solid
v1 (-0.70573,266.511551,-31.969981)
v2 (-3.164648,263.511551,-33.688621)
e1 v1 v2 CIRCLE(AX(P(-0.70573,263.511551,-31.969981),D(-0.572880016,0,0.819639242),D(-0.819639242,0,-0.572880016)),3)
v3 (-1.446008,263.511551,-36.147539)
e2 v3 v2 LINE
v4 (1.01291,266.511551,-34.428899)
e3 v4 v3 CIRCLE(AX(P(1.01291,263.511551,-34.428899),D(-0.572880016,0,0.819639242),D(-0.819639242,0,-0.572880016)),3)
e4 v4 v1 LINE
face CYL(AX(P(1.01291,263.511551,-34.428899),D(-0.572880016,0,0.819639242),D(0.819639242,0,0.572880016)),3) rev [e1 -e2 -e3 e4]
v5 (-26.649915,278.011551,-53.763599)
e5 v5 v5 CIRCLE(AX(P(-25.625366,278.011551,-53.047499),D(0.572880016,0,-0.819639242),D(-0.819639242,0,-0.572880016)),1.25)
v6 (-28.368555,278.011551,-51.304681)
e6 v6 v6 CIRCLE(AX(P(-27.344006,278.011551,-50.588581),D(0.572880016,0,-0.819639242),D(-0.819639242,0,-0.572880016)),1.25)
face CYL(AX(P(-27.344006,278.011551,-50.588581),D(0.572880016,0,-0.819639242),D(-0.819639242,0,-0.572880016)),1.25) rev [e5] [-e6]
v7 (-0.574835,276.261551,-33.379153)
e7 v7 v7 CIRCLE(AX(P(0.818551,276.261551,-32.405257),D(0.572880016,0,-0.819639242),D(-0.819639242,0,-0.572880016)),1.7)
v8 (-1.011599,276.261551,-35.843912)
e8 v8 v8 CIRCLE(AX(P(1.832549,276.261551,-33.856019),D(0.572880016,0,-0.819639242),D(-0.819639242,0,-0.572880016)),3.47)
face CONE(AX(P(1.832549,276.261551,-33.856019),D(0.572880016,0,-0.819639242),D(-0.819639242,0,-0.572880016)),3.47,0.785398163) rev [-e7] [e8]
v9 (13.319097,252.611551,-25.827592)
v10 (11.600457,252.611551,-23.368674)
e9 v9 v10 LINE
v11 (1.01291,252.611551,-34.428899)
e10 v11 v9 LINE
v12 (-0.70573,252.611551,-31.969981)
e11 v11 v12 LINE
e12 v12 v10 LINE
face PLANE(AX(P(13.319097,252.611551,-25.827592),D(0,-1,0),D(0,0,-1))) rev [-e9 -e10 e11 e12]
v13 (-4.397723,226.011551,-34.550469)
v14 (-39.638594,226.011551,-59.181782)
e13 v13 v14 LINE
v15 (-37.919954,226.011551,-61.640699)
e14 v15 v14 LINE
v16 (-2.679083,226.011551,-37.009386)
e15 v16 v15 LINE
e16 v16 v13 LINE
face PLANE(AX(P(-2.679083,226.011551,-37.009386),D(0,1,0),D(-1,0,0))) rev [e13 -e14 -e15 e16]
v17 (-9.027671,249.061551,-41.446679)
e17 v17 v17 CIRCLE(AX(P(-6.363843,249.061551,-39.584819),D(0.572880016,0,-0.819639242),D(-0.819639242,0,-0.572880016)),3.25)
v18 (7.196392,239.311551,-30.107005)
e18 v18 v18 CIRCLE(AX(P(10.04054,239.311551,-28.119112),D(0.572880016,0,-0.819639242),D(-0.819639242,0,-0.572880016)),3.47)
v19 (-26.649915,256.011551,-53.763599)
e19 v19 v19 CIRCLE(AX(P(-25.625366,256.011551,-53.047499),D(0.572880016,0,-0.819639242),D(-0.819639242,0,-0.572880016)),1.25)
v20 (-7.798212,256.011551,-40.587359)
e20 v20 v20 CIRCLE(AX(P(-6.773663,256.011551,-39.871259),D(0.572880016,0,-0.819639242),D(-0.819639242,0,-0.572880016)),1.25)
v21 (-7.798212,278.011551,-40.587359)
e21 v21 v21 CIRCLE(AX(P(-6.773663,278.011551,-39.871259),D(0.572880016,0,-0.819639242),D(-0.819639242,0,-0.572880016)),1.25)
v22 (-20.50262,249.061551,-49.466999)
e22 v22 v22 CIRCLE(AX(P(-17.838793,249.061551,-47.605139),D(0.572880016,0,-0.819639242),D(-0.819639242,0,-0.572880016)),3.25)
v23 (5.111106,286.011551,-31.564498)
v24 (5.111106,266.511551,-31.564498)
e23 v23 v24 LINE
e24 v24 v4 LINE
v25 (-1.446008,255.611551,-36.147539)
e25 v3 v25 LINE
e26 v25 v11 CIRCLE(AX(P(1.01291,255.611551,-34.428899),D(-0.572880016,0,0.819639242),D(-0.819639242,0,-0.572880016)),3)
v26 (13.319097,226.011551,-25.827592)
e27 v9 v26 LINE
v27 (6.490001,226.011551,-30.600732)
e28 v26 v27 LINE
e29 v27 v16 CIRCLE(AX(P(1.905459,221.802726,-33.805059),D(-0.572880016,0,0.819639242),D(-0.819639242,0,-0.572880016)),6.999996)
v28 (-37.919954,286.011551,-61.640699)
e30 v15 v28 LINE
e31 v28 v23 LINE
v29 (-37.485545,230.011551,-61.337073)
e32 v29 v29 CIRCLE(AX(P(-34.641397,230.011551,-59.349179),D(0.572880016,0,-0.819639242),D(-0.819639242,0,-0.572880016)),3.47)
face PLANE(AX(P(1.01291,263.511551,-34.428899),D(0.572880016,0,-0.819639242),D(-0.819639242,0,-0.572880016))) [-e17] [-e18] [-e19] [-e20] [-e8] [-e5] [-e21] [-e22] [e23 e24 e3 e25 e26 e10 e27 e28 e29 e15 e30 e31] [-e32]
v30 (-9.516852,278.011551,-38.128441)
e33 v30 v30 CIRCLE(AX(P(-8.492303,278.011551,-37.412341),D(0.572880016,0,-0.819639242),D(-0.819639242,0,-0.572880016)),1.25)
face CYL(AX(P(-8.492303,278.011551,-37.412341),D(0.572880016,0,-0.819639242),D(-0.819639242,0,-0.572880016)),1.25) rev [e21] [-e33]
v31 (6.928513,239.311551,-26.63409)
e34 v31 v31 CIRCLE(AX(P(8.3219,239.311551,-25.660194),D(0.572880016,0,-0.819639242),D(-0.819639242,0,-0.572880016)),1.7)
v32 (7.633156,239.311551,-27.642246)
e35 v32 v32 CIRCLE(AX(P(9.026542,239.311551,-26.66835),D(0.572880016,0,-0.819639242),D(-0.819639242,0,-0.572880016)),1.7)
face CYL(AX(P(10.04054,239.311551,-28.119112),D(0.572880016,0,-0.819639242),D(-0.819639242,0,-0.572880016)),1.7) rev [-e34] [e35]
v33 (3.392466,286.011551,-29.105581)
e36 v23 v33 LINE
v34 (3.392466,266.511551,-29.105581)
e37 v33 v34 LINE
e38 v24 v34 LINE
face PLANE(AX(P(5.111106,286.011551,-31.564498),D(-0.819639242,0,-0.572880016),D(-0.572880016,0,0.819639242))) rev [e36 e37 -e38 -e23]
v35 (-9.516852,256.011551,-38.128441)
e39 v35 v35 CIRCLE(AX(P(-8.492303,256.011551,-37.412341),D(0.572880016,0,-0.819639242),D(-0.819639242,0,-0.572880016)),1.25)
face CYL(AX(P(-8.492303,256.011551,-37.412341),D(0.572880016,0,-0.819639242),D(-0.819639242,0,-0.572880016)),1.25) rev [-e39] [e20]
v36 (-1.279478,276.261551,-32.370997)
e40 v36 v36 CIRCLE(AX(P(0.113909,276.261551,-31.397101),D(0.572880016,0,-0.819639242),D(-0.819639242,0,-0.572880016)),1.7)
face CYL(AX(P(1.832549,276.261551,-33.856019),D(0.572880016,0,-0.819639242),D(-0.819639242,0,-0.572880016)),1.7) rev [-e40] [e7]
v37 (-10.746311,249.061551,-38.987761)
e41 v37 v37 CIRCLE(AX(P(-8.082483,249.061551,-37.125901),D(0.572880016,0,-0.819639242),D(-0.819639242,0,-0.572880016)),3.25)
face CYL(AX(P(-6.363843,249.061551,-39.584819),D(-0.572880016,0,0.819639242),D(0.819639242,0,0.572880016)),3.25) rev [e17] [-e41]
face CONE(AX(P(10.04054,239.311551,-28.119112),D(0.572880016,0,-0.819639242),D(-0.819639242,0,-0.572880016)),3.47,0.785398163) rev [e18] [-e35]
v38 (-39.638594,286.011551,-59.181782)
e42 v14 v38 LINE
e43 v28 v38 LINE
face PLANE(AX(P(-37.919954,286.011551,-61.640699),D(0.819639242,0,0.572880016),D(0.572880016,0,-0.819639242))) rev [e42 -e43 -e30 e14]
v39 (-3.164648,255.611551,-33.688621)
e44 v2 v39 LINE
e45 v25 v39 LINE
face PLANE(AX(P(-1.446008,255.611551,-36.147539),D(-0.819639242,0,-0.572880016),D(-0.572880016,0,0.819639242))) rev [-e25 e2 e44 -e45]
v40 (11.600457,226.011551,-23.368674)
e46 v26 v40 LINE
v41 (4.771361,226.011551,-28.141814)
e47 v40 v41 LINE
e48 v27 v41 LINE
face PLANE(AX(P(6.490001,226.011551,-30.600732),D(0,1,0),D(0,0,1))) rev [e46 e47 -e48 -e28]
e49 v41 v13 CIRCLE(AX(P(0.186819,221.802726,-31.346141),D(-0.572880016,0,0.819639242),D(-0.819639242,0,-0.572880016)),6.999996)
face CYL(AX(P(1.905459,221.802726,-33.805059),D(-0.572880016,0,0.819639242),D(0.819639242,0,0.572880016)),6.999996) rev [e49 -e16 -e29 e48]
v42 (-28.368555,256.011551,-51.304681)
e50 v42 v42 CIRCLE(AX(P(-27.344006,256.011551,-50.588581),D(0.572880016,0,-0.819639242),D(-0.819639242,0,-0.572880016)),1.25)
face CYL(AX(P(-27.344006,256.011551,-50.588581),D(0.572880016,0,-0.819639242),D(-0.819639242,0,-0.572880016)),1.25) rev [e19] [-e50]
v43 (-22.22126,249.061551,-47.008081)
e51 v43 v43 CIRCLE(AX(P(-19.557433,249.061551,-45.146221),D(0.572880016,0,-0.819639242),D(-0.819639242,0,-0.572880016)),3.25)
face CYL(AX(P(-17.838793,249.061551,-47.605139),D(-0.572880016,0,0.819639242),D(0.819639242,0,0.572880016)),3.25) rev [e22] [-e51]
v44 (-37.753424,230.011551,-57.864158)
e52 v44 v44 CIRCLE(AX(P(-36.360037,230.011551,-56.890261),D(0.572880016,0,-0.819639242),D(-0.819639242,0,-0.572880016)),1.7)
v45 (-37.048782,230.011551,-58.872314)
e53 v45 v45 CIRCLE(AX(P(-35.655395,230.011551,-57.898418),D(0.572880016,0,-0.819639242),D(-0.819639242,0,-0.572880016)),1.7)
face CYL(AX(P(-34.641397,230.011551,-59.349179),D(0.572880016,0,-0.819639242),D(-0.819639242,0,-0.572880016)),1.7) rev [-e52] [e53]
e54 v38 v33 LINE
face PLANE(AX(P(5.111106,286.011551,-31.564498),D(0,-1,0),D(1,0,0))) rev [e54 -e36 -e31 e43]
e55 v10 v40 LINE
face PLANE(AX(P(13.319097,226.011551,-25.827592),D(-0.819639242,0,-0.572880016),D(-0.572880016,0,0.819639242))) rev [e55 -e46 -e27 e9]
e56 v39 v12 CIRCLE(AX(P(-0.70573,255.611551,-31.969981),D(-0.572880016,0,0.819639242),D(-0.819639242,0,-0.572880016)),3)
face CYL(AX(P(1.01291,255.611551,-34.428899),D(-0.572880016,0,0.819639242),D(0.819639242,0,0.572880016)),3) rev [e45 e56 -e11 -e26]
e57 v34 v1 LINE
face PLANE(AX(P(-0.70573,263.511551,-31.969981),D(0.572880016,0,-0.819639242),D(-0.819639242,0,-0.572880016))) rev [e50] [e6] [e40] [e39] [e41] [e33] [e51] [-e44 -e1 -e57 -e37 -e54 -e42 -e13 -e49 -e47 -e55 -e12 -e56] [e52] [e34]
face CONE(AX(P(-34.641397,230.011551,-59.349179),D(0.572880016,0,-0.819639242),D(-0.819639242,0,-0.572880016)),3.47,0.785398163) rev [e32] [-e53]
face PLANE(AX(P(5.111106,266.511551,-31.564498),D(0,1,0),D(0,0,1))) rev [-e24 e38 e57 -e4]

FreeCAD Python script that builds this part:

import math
import FreeCAD as App
import Part
import Sketcher

V = App.Vector
Q = App.Units.Quantity

doc = App.newDocument("Part")
body = doc.addObject("PartDesign::Body", "Body")

sketch1 = body.newObject("Sketcher::SketchObject", "Sketch")
sketch1.Placement = App.Placement(V(14.780048, 0, -21.146325), App.Rotation(V(-0.819639242, 0, -0.572880016), V(0, 1, 0), V(0.572880016, 0, -0.819639242), "ZXY"))
sketch1.addGeometry([
    Part.LineSegment(V(13.9, 266.5, 0), V(18.9, 266.5, 0)),
    Part.ArcOfCircle(Part.Circle(V(18.9, 263.5, 0), V(0, 0, 1), 3), math.radians(0), math.radians(90)),
    Part.LineSegment(V(21.9, 263.5, 0), V(21.9, 255.6, 0)),
    Part.ArcOfCircle(Part.Circle(V(18.9, 255.6, 0), V(0, 0, 1), 3), math.radians(-90), math.radians(0)),
    Part.LineSegment(V(18.9, 252.6, 0), V(3.9, 252.6, 0)),
    Part.LineSegment(V(3.9, 252.6, 0), V(3.9, 226, 0)),
    Part.LineSegment(V(3.9, 226, 0), V(12.2, 226, 0)),
    Part.ArcOfCircle(Part.Circle(V(17.8, 221.8, 0), V(0, 0, 1), 7), math.radians(37), math.radians(143)),
    Part.LineSegment(V(23.4, 226, 0), V(66.4, 226, 0)),
    Part.LineSegment(V(66.4, 226, 0), V(66.4, 286, 0)),
    Part.LineSegment(V(66.4, 286, 0), V(13.9, 286, 0)),
    Part.LineSegment(V(13.9, 286, 0), V(13.9, 266.5, 0)),
    Part.Circle(V(27.9, 249.1, 0), V(0, 0, 1), 3.2),
    Part.Circle(V(41.9, 249.1, 0), V(0, 0, 1), 3.2),
], False)
sketch1.addConstraint([
    Sketcher.Constraint("Tangent", 0, 2, 1, 2),
    Sketcher.Constraint("Tangent", 1, 1, 2, 1),
    Sketcher.Constraint("Tangent", 2, 2, 3, 2),
    Sketcher.Constraint("Tangent", 3, 1, 4, 1),
    Sketcher.Constraint("Coincident", 4, 2, 5, 1),
    Sketcher.Constraint("Coincident", 5, 2, 6, 1),
    Sketcher.Constraint("Coincident", 6, 2, 7, 2),
    Sketcher.Constraint("Coincident", 7, 1, 8, 1),
    Sketcher.Constraint("Coincident", 8, 2, 9, 1),
    Sketcher.Constraint("Coincident", 9, 2, 10, 1),
    Sketcher.Constraint("Coincident", 10, 2, 11, 1),
    Sketcher.Constraint("Coincident", 11, 2, 0, 1),
    Sketcher.Constraint("Horizontal", 0),
    Sketcher.Constraint("Vertical", 2),
    Sketcher.Constraint("Horizontal", 4),
    Sketcher.Constraint("Vertical", 5),
    Sketcher.Constraint("Horizontal", 6),
    Sketcher.Constraint("Horizontal", 8),
    Sketcher.Constraint("Vertical", 9),
    Sketcher.Constraint("Horizontal", 10),
    Sketcher.Constraint("Vertical", 11),
    Sketcher.Constraint("Equal", 1, 3),
    Sketcher.Constraint("Equal", 12, 13),
    Sketcher.Constraint("Horizontal", 12, 3, 13, 3),
    Sketcher.Constraint("Horizontal", 6, 2, 7, 1),
    Sketcher.Constraint("Radius", 1, Q("3 mm")),
    Sketcher.Constraint("Diameter", 12, Q("6.5 mm")),
    Sketcher.Constraint("DistanceX", 0, 1, 0, 2, Q("5 mm")),
    Sketcher.Constraint("DistanceY", 9, 1, 9, 2, Q("60 mm")),
    Sketcher.Constraint("DistanceX", 10, 2, 10, 1, Q("52.5 mm")),
    Sketcher.Constraint("DistanceY", 2, 2, 2, 1, Q("7.9 mm")),
    Sketcher.Constraint("DistanceY", 5, 2, 5, 1, Q("26.6 mm")),
    Sketcher.Constraint("DistanceX", 3, 3, 12, 3, Q("9 mm")),
    Sketcher.Constraint("DistanceX", 12, 3, 13, 3, Q("14 mm")),
    Sketcher.Constraint("DistanceY", 12, 3, 3, 3, Q("6.55 mm")),
    Sketcher.Constraint("Radius", 7, Q("6.999996 mm")),
    Sketcher.Constraint("DistanceX", 4, 2, 4, 1, Q("15.014151 mm")),
    Sketcher.Constraint("DistanceX", 6, 1, 6, 2, Q("8.331832 mm")),
    Sketcher.Constraint("DistanceX", 8, 1, 8, 2, Q("42.995588 mm")),
    Sketcher.Constraint("DistanceY", -1, 1, 1, 3, Q("263.511551 mm")),
    Sketcher.Constraint("DistanceX", -1, 1, 6, 2, Q("12.211088 mm")),
])
pad1 = body.newObject("PartDesign::Pad", "Pad")
pad1.Profile = sketch1
pad1.Length = 3

sketch2 = body.newObject("Sketcher::SketchObject", "Sketch001")
sketch2.Placement = App.Placement(V(16.498688, 0, -23.605243), App.Rotation(V(-0.819639242, 0, -0.572880016), V(0, 1, 0), V(0.572880016, 0, -0.819639242), "ZXY"))
sketch2.addGeometry([
    Part.Circle(V(28.4, 278, 0), V(0, 0, 1), 1.2),
    Part.Circle(V(51.4, 278, 0), V(0, 0, 1), 1.2),
    Part.Circle(V(28.4, 256, 0), V(0, 0, 1), 1.2),
    Part.Circle(V(51.4, 256, 0), V(0, 0, 1), 1.2),
], False)
sketch2.addConstraint([
    Sketcher.Constraint("Equal", 0, 1),
    Sketcher.Constraint("Equal", 1, 2),
    Sketcher.Constraint("Equal", 2, 3),
    Sketcher.Constraint("Horizontal", 0, 3, 1, 3),
    Sketcher.Constraint("Horizontal", 2, 3, 3, 3),
    Sketcher.Constraint("Vertical", 0, 3, 2, 3),
    Sketcher.Constraint("Vertical", 1, 3, 3, 3),
    Sketcher.Constraint("Diameter", 0, Q("2.5 mm")),
    Sketcher.Constraint("DistanceX", 0, 3, 1, 3, Q("23 mm")),
    Sketcher.Constraint("DistanceY", 2, 3, 0, 3, Q("22 mm")),
    Sketcher.Constraint("DistanceY", -1, 1, 0, 3, Q("278.011551 mm")),
    Sketcher.Constraint("DistanceX", -1, 1, 0, 3, Q("28.393407 mm")),
])
pocket1 = body.newObject("PartDesign::Pocket", "Pocket")
pocket1.Profile = sketch2
pocket1.Length = 3

sketch3 = body.newObject("Sketcher::SketchObject", "Sketch002")
sketch3.Placement = App.Placement(V(16.498688, 0, -23.605243), App.Rotation(V(-0.819639242, 0, -0.572880016), V(0, 1, 0), V(0.572880016, 0, -0.819639242), "ZXY"))
sketch3.addGeometry([
    Part.Circle(V(17.9, 276.3, 0), V(0, 0, 1), 1.7),
    Part.Circle(V(7.9, 239.3, 0), V(0, 0, 1), 1.7),
    Part.Circle(V(62.4, 230, 0), V(0, 0, 1), 1.7),
], False)
sketch3.addConstraint([
    Sketcher.Constraint("Equal", 0, 1),
    Sketcher.Constraint("Equal", 1, 2),
    Sketcher.Constraint("Diameter", 0, Q("3.4 mm")),
    Sketcher.Constraint("DistanceY", 2, 3, 1, 3, Q("9.3 mm")),
    Sketcher.Constraint("DistanceX", 0, 3, 2, 3, Q("44.5 mm")),
    Sketcher.Constraint("DistanceY", 1, 3, 0, 3, Q("36.95 mm")),
    Sketcher.Constraint("DistanceY", -1, 1, 0, 3, Q("276.261551 mm")),
    Sketcher.Constraint("DistanceX", 1, 3, 0, 3, Q("10.014151 mm")),
    Sketcher.Constraint("DistanceX", -1, 1, 0, 3, Q("17.893407 mm")),
])
doc.recompute()
hole = body.newObject("PartDesign::Hole", "Hole")
hole.Profile = sketch3
hole.ThreadType = "None"
hole.Diameter = 3.4
hole.DepthType = "Dimension"
hole.Depth = 3
hole.DrillPoint = "Angled"
hole.DrillPointAngle = 118
hole.HoleCutType = "Countersink"
hole.HoleCutDiameter = 6.94
hole.HoleCutCountersinkAngle = 90

doc.recompute()
